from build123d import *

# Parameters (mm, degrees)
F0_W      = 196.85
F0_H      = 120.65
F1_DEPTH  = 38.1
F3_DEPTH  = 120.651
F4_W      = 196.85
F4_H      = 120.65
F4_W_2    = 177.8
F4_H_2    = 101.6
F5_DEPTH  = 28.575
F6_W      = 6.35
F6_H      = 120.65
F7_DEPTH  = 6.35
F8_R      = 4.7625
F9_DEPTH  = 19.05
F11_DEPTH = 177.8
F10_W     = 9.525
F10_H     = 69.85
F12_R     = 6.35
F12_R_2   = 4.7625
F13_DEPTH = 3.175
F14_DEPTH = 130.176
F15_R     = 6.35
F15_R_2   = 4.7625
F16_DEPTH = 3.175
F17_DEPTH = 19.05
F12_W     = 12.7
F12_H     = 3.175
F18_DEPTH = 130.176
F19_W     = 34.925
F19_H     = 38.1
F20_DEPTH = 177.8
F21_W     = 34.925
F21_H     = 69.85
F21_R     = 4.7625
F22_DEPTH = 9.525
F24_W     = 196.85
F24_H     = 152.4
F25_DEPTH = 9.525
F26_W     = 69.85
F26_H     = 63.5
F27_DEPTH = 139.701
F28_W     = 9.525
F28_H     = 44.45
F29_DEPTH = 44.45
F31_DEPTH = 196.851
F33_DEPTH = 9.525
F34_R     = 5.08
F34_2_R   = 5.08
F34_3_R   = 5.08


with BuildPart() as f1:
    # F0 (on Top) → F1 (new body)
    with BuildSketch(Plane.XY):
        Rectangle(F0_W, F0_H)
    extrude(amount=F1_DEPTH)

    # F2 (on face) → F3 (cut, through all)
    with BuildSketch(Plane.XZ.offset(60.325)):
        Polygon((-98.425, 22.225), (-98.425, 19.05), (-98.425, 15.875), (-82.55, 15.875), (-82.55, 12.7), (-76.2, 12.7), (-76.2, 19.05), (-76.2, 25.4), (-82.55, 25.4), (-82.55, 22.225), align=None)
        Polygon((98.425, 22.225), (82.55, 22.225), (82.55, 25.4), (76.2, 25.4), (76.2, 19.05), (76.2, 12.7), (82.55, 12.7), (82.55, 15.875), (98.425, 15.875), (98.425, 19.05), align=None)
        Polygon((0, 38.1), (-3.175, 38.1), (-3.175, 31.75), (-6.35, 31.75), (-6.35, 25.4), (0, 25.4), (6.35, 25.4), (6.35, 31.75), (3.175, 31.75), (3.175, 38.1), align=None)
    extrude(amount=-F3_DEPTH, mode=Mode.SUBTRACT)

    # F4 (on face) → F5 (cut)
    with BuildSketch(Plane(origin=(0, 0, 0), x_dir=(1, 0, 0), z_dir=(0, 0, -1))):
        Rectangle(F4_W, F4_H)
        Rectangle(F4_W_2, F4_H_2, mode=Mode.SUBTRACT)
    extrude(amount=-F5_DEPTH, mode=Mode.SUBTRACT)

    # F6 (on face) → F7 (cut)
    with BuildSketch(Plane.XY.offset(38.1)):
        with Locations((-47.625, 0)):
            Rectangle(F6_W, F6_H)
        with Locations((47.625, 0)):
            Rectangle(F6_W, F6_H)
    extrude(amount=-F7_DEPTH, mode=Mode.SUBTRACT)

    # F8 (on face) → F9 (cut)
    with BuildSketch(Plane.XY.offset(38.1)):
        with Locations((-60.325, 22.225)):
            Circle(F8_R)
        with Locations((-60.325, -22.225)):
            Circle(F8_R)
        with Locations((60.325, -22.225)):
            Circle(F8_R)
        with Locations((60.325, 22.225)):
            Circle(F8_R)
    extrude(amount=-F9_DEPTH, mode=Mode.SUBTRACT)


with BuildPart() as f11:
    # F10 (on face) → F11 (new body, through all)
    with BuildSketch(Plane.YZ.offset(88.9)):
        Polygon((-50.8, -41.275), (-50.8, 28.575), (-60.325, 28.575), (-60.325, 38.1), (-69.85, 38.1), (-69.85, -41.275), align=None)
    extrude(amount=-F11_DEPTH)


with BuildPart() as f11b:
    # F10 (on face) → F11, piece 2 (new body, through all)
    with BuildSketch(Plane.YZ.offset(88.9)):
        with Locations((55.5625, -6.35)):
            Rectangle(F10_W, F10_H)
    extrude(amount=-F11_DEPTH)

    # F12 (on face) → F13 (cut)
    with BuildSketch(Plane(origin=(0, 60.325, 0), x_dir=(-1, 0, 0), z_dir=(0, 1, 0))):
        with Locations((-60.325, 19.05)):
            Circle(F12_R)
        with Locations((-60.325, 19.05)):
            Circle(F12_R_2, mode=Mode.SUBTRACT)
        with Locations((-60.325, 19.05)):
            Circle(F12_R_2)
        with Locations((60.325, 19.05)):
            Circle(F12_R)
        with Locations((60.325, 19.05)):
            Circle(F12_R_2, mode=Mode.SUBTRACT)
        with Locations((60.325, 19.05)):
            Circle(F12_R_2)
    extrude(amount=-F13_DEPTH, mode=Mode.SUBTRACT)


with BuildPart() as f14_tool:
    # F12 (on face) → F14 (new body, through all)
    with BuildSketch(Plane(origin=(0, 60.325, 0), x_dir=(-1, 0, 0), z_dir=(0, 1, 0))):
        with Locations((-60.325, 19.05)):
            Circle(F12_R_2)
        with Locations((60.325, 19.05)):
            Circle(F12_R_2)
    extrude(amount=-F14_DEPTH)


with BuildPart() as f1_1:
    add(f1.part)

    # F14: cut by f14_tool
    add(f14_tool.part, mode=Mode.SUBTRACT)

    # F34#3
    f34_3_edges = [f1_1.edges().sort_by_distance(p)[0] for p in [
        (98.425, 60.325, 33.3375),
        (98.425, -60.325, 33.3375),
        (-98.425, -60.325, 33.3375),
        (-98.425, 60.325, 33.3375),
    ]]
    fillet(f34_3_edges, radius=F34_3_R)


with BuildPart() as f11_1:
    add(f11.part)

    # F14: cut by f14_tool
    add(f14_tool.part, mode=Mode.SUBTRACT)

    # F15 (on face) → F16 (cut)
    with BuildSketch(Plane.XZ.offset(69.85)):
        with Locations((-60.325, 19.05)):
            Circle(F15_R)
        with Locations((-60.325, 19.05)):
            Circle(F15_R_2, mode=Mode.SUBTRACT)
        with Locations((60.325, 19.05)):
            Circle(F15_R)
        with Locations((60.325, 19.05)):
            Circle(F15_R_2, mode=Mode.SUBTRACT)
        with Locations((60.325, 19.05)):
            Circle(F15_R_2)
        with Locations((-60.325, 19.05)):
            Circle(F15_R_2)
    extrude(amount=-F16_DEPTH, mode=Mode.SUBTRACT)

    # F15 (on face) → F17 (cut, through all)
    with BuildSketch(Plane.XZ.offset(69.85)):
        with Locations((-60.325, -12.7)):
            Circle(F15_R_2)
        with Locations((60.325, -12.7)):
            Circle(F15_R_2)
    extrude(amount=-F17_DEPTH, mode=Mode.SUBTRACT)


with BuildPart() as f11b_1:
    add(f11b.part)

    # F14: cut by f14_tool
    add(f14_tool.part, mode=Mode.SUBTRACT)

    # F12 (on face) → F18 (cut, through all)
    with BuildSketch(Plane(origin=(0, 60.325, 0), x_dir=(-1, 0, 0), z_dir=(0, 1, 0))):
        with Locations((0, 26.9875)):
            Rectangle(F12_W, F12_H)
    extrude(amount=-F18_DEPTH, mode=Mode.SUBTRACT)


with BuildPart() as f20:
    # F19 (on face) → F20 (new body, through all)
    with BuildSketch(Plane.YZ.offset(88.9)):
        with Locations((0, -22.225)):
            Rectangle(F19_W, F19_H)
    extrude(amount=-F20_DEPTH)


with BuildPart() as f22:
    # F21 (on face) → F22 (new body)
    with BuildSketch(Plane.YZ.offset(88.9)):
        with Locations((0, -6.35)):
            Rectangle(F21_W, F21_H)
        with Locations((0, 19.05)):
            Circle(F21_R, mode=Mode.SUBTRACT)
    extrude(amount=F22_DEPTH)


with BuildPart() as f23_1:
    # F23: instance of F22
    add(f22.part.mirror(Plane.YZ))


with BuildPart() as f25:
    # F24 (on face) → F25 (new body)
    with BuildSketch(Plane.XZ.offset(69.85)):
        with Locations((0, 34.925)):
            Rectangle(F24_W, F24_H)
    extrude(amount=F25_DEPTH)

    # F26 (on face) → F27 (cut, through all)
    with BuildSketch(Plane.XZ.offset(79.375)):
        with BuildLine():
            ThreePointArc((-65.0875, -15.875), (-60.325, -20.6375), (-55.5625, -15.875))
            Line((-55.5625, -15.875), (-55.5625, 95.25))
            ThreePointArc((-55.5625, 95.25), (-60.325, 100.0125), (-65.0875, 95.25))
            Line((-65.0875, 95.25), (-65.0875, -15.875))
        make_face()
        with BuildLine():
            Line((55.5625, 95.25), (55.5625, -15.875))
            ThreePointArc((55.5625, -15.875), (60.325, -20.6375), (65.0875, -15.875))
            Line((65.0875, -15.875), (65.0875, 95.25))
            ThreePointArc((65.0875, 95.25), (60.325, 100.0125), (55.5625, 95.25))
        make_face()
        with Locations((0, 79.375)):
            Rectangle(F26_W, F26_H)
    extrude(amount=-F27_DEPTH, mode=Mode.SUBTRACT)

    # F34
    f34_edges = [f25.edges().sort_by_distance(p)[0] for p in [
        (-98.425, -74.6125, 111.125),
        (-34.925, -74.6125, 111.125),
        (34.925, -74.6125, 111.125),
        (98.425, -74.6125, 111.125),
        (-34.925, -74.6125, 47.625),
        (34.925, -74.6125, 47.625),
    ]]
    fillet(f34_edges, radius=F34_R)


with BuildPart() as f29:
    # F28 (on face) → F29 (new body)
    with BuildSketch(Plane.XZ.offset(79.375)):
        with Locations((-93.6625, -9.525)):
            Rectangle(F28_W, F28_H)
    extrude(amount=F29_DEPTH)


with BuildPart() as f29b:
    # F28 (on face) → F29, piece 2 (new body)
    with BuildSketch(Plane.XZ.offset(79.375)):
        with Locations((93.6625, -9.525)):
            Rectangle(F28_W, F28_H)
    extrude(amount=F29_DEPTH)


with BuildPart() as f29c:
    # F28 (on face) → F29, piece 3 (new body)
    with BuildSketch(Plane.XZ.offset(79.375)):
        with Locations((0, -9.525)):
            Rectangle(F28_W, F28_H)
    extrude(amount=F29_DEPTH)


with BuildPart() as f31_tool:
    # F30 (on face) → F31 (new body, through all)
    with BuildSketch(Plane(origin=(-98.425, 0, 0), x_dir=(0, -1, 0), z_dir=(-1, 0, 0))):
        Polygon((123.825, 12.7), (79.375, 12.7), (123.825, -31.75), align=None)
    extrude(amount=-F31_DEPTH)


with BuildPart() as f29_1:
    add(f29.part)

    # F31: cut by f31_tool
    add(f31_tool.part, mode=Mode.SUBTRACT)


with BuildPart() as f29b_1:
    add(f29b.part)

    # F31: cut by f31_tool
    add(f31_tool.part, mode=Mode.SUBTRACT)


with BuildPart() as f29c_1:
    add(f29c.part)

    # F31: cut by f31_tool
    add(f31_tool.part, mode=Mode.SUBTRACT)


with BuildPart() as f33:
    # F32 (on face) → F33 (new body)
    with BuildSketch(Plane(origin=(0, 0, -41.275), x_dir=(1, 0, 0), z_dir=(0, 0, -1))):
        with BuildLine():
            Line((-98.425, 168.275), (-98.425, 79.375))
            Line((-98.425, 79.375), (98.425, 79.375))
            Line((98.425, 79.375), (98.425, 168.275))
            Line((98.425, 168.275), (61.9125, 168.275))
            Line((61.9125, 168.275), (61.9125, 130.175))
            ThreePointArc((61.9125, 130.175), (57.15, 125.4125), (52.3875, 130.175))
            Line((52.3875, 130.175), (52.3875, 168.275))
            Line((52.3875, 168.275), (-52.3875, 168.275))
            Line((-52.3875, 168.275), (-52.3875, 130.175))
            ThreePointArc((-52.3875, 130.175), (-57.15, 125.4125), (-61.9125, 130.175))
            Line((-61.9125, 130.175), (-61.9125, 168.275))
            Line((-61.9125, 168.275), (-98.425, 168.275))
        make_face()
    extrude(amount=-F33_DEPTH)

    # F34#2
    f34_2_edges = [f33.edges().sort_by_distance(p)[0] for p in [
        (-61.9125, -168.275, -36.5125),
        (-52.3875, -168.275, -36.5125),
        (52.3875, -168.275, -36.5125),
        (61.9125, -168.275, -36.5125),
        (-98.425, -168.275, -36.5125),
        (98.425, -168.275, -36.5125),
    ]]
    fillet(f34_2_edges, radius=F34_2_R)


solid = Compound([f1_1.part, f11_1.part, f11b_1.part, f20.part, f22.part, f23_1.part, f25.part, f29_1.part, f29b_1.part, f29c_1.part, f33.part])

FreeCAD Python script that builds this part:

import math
import FreeCAD as App
import Part
import Sketcher
Q = App.Units.Quantity


def edges_at(feature, points):
    """Names of the edges that pass closest to the given points."""
    edges = feature.Shape.Edges
    near = lambda p: min(range(len(edges)), key=lambda i: edges[i].distToShape(Part.Vertex(*p))[0])
    return sorted({f"Edge{near(p) + 1}" for p in points})


def add_polygon(sketch, points):
    """Adds a closed chain of lines whose ends are joined by coincident constraints."""
    first, n = sketch.GeometryCount, len(points)
    for a, b in zip(points, points[1:] + points[:1]):
        sketch.addGeometry(Part.LineSegment(App.Vector(*a, 0), App.Vector(*b, 0)), False)
    for i in range(n):
        sketch.addConstraint(Sketcher.Constraint("Coincident", first + i, 2, first + (i + 1) % n, 1))

doc = App.newDocument("Part")
body = doc.addObject("PartDesign::Body", "Body")

# Sketch on XY plane
sketch1 = doc.addObject("Sketcher::SketchObject", "Sketch")
body.addObject(sketch1)
sketch1.AttachmentSupport = (doc.XY_Plane, [""])
sketch1.MapMode = "FlatFace"
add_polygon(sketch1, [(-98.425, 60.325), (-98.425, -60.325), (98.425, -60.325), (98.425, 60.325)])  # lines 0-3
sketch1.addConstraint(Sketcher.Constraint("Vertical", 0))
sketch1.addConstraint(Sketcher.Constraint("Horizontal", 1))
sketch1.addConstraint(Sketcher.Constraint("Vertical", 2))
sketch1.addConstraint(Sketcher.Constraint("Horizontal", 3))
sketch1.addConstraint(Sketcher.Constraint("Symmetric", 0, 2, 2, 2, -1, 1))
sketch1.addConstraint(Sketcher.Constraint("DistanceX", 1, 1, 1, 2, Q("7.75 in")))
sketch1.addConstraint(Sketcher.Constraint("DistanceY", 0, 2, 0, 1, Q("4.75 in")))
pad1 = doc.addObject("PartDesign::Pad", "Pad")
body.addObject(pad1)
pad1.Profile = sketch1
pad1.Length = Q("1.5 in")

# Sketch on XZ plane
sketch2 = doc.addObject("Sketcher::SketchObject", "Sketch001")
body.addObject(sketch2)
sketch2.AttachmentSupport = (doc.XZ_Plane, [""])
sketch2.MapMode = "FlatFace"
sketch2.AttachmentOffset = App.Placement(App.Vector(0, 0, 2.375 * 25.4), App.Rotation())
add_polygon(sketch2, [(-98.425, 22.225), (-98.425, 15.875), (-82.55, 15.875), (-82.55, 12.7), (-76.2, 12.7), (-76.2, 25.4), (-82.55, 25.4), (-82.55, 22.225)])  # lines 0-7
add_polygon(sketch2, [(98.425, 22.225), (82.55, 22.225), (82.55, 25.4), (76.2, 25.4), (76.2, 12.7), (82.55, 12.7), (82.55, 15.875), (98.425, 15.875)])  # lines 8-15
add_polygon(sketch2, [(-3.175, 38.1), (-3.175, 31.75), (-6.35, 31.75), (-6.35, 25.4), (6.35, 25.4), (6.35, 31.75), (3.175, 31.75), (3.175, 38.1)])  # lines 16-23
sketch2.addConstraint(Sketcher.Constraint("Vertical", 0))
sketch2.addConstraint(Sketcher.Constraint("Horizontal", 1))
sketch2.addConstraint(Sketcher.Constraint("Vertical", 2))
sketch2.addConstraint(Sketcher.Constraint("Horizontal", 3))
sketch2.addConstraint(Sketcher.Constraint("Vertical", 4))
sketch2.addConstraint(Sketcher.Constraint("Horizontal", 5))
sketch2.addConstraint(Sketcher.Constraint("Vertical", 6))
sketch2.addConstraint(Sketcher.Constraint("Horizontal", 7))
sketch2.addConstraint(Sketcher.Constraint("Horizontal", 8))
sketch2.addConstraint(Sketcher.Constraint("Vertical", 9))
sketch2.addConstraint(Sketcher.Constraint("Horizontal", 10))
sketch2.addConstraint(Sketcher.Constraint("Vertical", 11))
sketch2.addConstraint(Sketcher.Constraint("Horizontal", 12))
sketch2.addConstraint(Sketcher.Constraint("Vertical", 13))
sketch2.addConstraint(Sketcher.Constraint("Horizontal", 14))
sketch2.addConstraint(Sketcher.Constraint("Vertical", 15))
sketch2.addConstraint(Sketcher.Constraint("Vertical", 16))
sketch2.addConstraint(Sketcher.Constraint("Horizontal", 17))
sketch2.addConstraint(Sketcher.Constraint("Vertical", 18))
sketch2.addConstraint(Sketcher.Constraint("Horizontal", 19))
sketch2.addConstraint(Sketcher.Constraint("Vertical", 20))
sketch2.addConstraint(Sketcher.Constraint("Horizontal", 21))
sketch2.addConstraint(Sketcher.Constraint("Vertical", 22))
sketch2.addConstraint(Sketcher.Constraint("Horizontal", 23))
sketch2.addConstraint(Sketcher.Constraint("Symmetric", 6, 2, 8, 2, -2))
sketch2.addConstraint(Sketcher.Constraint("Symmetric", 4, 2, 10, 2, -2))
sketch2.addConstraint(Sketcher.Constraint("Symmetric", 2, 2, 12, 2, -2))
sketch2.addConstraint(Sketcher.Constraint("Symmetric", 0, 2, 14, 2, -2))
sketch2.addConstraint(Sketcher.Constraint("Symmetric", 17, 2, 20, 2, -2))
sketch2.addConstraint(Sketcher.Constraint("Horizontal", 10, 2, 18, 2))
sketch2.addConstraint(Sketcher.Constraint("Vertical", 2, 2, 5, 2))
sketch2.addConstraint(Sketcher.Constraint("Equal", 17, 21))
sketch2.addConstraint(Sketcher.Constraint("Equal", 12, 23))
sketch2.addConstraint(Sketcher.Constraint("Equal", 23, 0))
sketch2.addConstraint(Sketcher.Constraint("Equal", 21, 2))
sketch2.addConstraint(Sketcher.Constraint("Equal", 19, 4))
sketch2.addConstraint(Sketcher.Constraint("Equal", 15, 16))
sketch2.addConstraint(Sketcher.Constraint("Equal", 16, 18))
sketch2.addConstraint(Sketcher.Constraint("DistanceX", 19, 1, 19, 2, Q("0.5 in")))
sketch2.addConstraint(Sketcher.Constraint("DistanceX", 3, 2, -1, 1, Q("3 in")))
sketch2.addConstraint(Sketcher.Constraint("DistanceY", -1, 1, 4, 2, Q("1 in")))
sketch2.addConstraint(Sketcher.Constraint("DistanceX", 5, 2, 17, 2, Q("3 in")))
sketch2.addConstraint(Sketcher.Constraint("DistanceX", 1, 1, 1, 2, Q("0.625 in")))
pocket1 = doc.addObject("PartDesign::Pocket", "Pocket")
body.addObject(pocket1)
pocket1.Profile = sketch2
pocket1.Type = "ThroughAll"

# Sketch on XY plane
sketch3 = doc.addObject("Sketcher::SketchObject", "Sketch002")
body.addObject(sketch3)
sketch3.AttachmentSupport = (doc.XY_Plane, [""])
sketch3.MapMode = "FlatFace"
add_polygon(sketch3, [(-98.425, -60.325), (-98.425, 60.325), (98.425, 60.325), (98.425, -60.325)])  # lines 0-3
add_polygon(sketch3, [(88.9, 50.8), (-88.9, 50.8), (-88.9, -50.8), (88.9, -50.8)])  # lines 4-7
sketch3.addConstraint(Sketcher.Constraint("Vertical", 0))
sketch3.addConstraint(Sketcher.Constraint("Horizontal", 1))
sketch3.addConstraint(Sketcher.Constraint("Vertical", 2))
sketch3.addConstraint(Sketcher.Constraint("Horizontal", 3))
sketch3.addConstraint(Sketcher.Constraint("Horizontal", 4))
sketch3.addConstraint(Sketcher.Constraint("Vertical", 5))
sketch3.addConstraint(Sketcher.Constraint("Horizontal", 6))
sketch3.addConstraint(Sketcher.Constraint("Vertical", 7))
sketch3.addConstraint(Sketcher.Constraint("Symmetric", 0, 2, 2, 2, -1, 1))
sketch3.addConstraint(Sketcher.Constraint("Symmetric", 4, 2, 6, 2, -1, 1))
sketch3.addConstraint(Sketcher.Constraint("DistanceX", 4, 2, 4, 1, Q("7 in")))
sketch3.addConstraint(Sketcher.Constraint("DistanceY", 5, 2, 5, 1, Q("4 in")))
sketch3.addConstraint(Sketcher.Constraint("DistanceX", 1, 1, 1, 2, Q("7.75 in")))
sketch3.addConstraint(Sketcher.Constraint("DistanceY", 0, 1, 0, 2, Q("4.75 in")))
pocket2 = doc.addObject("PartDesign::Pocket", "Pocket001")
body.addObject(pocket2)
pocket2.Profile = sketch3
pocket2.Length = Q("1.125 in")
pocket2.Reversed = True

# Sketch on XY plane
sketch4 = doc.addObject("Sketcher::SketchObject", "Sketch003")
body.addObject(sketch4)
sketch4.AttachmentSupport = (doc.XY_Plane, [""])
sketch4.MapMode = "FlatFace"
sketch4.AttachmentOffset = App.Placement(App.Vector(0, 0, 1.5 * 25.4), App.Rotation())
add_polygon(sketch4, [(-50.8, 60.325), (-50.8, -60.325), (-44.45, -60.325), (-44.45, 60.325)])  # lines 0-3
add_polygon(sketch4, [(44.45, 60.325), (44.45, -60.325), (50.8, -60.325), (50.8, 60.325)])  # lines 4-7
sketch4.addConstraint(Sketcher.Constraint("Vertical", 0))
sketch4.addConstraint(Sketcher.Constraint("Horizontal", 1))
sketch4.addConstraint(Sketcher.Constraint("Vertical", 2))
sketch4.addConstraint(Sketcher.Constraint("Horizontal", 3))
sketch4.addConstraint(Sketcher.Constraint("Vertical", 4))
sketch4.addConstraint(Sketcher.Constraint("Horizontal", 5))
sketch4.addConstraint(Sketcher.Constraint("Vertical", 6))
sketch4.addConstraint(Sketcher.Constraint("Horizontal", 7))
sketch4.addConstraint(Sketcher.Constraint("Symmetric", 2, 2, 4, 2, -1, 1))
sketch4.addConstraint(Sketcher.Constraint("Symmetric", 0, 2, 6, 2, -1, 1))
sketch4.addConstraint(Sketcher.Constraint("Horizontal", 1, 2, 4, 2))
sketch4.addConstraint(Sketcher.Constraint("DistanceX", 0, 2, -1, 1, Q("2 in")))
sketch4.addConstraint(Sketcher.Constraint("DistanceX", 1, 1, 1, 2, Q("0.25 in")))
sketch4.addConstraint(Sketcher.Constraint("DistanceY", 0, 2, 0, 1, Q("4.75 in")))
pocket3 = doc.addObject("PartDesign::Pocket", "Pocket002")
body.addObject(pocket3)
pocket3.Profile = sketch4
pocket3.Length = Q("0.25 in")

# Sketch on XY plane
sketch5 = doc.addObject("Sketcher::SketchObject", "Sketch004")
body.addObject(sketch5)
sketch5.AttachmentSupport = (doc.XY_Plane, [""])
sketch5.MapMode = "FlatFace"
sketch5.AttachmentOffset = App.Placement(App.Vector(0, 0, 1.5 * 25.4), App.Rotation())
sketch5.addGeometry(Part.Circle(App.Vector(-60.325, 22.225, 0), App.Vector(0, 0, 1), 4.7625), False)
sketch5.addGeometry(Part.Circle(App.Vector(-60.325, -22.225, 0), App.Vector(0, 0, 1), 4.7625), False)
sketch5.addGeometry(Part.Circle(App.Vector(60.325, -22.225, 0), App.Vector(0, 0, 1), 4.7625), False)
sketch5.addGeometry(Part.Circle(App.Vector(60.325, 22.225, 0), App.Vector(0, 0, 1), 4.7625), False)
sketch5.addConstraint(Sketcher.Constraint("Equal", 0, 1))
sketch5.addConstraint(Sketcher.Constraint("Equal", 1, 2))
sketch5.addConstraint(Sketcher.Constraint("Equal", 2, 3))
sketch5.addConstraint(Sketcher.Constraint("Symmetric", 0, 3, 2, 3, -1, 1))
sketch5.addConstraint(Sketcher.Constraint("Symmetric", 1, 3, 3, 3, -1, 1))
sketch5.addConstraint(Sketcher.Constraint("Symmetric", 1, 3, 2, 3, -2))
sketch5.addConstraint(Sketcher.Constraint("Diameter", 0, Q("0.375 in")))
sketch5.addConstraint(Sketcher.Constraint("DistanceY", 1, 3, 0, 3, Q("1.75 in")))
sketch5.addConstraint(Sketcher.Constraint("DistanceX", 1, 3, 2, 3, Q("4.75 in")))
pocket4 = doc.addObject("PartDesign::Pocket", "Pocket003")
body.addObject(pocket4)
pocket4.Profile = sketch5
pocket4.Length = Q("0.75 in")
body2 = doc.addObject("PartDesign::Body", "Body001")

# Sketch on YZ plane
sketch6 = doc.addObject("Sketcher::SketchObject", "Sketch005")
body2.addObject(sketch6)
sketch6.AttachmentSupport = (doc.getObject("YZ_Plane001"), [""])
sketch6.MapMode = "FlatFace"
sketch6.AttachmentOffset = App.Placement(App.Vector(0, 0, 3.5 * 25.4), App.Rotation())
add_polygon(sketch6, [(-50.8, -41.275), (-50.8, 28.575), (-60.325, 28.575), (-60.325, 38.1), (-69.85, 38.1), (-69.85, -41.275)])  # lines 0-5
sketch6.addConstraint(Sketcher.Constraint("Vertical", 0))
sketch6.addConstraint(Sketcher.Constraint("Horizontal", 1))
sketch6.addConstraint(Sketcher.Constraint("Vertical", 2))
sketch6.addConstraint(Sketcher.Constraint("Horizontal", 3))
sketch6.addConstraint(Sketcher.Constraint("Vertical", 4))
sketch6.addConstraint(Sketcher.Constraint("Horizontal", 5))
sketch6.addConstraint(Sketcher.Constraint("Equal", 1, 3))
sketch6.addConstraint(Sketcher.Constraint("Equal", 3, 2))
sketch6.addConstraint(Sketcher.Constraint("DistanceX", 0, 2, -1, 1, Q("2 in")))
sketch6.addConstraint(Sketcher.Constraint("DistanceX", 5, 1, 5, 2, Q("0.75 in")))
sketch6.addConstraint(Sketcher.Constraint("DistanceY", 0, 1, 0, 2, Q("2.75 in")))
sketch6.addConstraint(Sketcher.Constraint("DistanceY", -1, 1, 2, 2, Q("1.5 in")))
pad2 = doc.addObject("PartDesign::Pad", "Pad001")
body2.addObject(pad2)
pad2.Profile = sketch6
pad2.Length = Q("7 in")
pad2.Reversed = True
body3 = doc.addObject("PartDesign::Body", "Body002")

# Sketch on YZ plane
sketch7 = doc.addObject("Sketcher::SketchObject", "Sketch006")
body3.addObject(sketch7)
sketch7.AttachmentSupport = (doc.getObject("YZ_Plane002"), [""])
sketch7.MapMode = "FlatFace"
sketch7.AttachmentOffset = App.Placement(App.Vector(0, 0, 3.5 * 25.4), App.Rotation())
add_polygon(sketch7, [(50.8, 28.575), (50.8, -41.275), (60.325, -41.275), (60.325, 28.575)])  # lines 0-3
sketch7.addConstraint(Sketcher.Constraint("Vertical", 0))
sketch7.addConstraint(Sketcher.Constraint("Horizontal", 1))
sketch7.addConstraint(Sketcher.Constraint("Vertical", 2))
sketch7.addConstraint(Sketcher.Constraint("Horizontal", 3))
sketch7.addConstraint(Sketcher.Constraint("DistanceX", -1, 1, 0, 2, Q("2 in")))
sketch7.addConstraint(Sketcher.Constraint("DistanceY", 0, 2, 0, 1, Q("2.75 in")))
sketch7.addConstraint(Sketcher.Constraint("DistanceX", 1, 1, 1, 2, Q("0.375 in")))
sketch7.addConstraint(Sketcher.Constraint("DistanceY", 0, 2, -1, 1, Q("1.625 in")))
pad3 = doc.addObject("PartDesign::Pad", "Pad002")
body3.addObject(pad3)
pad3.Profile = sketch7
pad3.Length = Q("7 in")
pad3.Reversed = True

# Sketch on XZ plane
sketch8 = doc.addObject("Sketcher::SketchObject", "Sketch007")
body3.addObject(sketch8)
sketch8.AttachmentSupport = (doc.getObject("XZ_Plane002"), [""])
sketch8.MapMode = "FlatFace"
sketch8.AttachmentOffset = App.Placement(App.Vector(0, 0, -2.375 * 25.4), App.Rotation())
sketch8.addGeometry(Part.Circle(App.Vector(60.325, 19.05, 0), App.Vector(0, 0, 1), 6.35), False)
sketch8.addGeometry(Part.Circle(App.Vector(-60.325, 19.05, 0), App.Vector(0, 0, 1), 6.35), False)
sketch8.addConstraint(Sketcher.Constraint("Equal", 0, 1))
sketch8.addConstraint(Sketcher.Constraint("Symmetric", 0, 3, 1, 3, -2))
sketch8.addConstraint(Sketcher.Constraint("Diameter", 0, Q("0.5 in")))
sketch8.addConstraint(Sketcher.Constraint("DistanceY", -1, 1, 0, 3, Q("0.75 in")))
sketch8.addConstraint(Sketcher.Constraint("DistanceX", 1, 3, 0, 3, Q("4.75 in")))
pocket5 = doc.addObject("PartDesign::Pocket", "Pocket004")
body3.addObject(pocket5)
pocket5.Profile = sketch8
pocket5.Length = Q("0.125 in")
pocket5.Reversed = True
body4 = doc.addObject("PartDesign::Body", "Body003")
body4.AllowCompound = True

# Sketch on XZ plane
sketch9 = doc.addObject("Sketcher::SketchObject", "Sketch008")
body4.addObject(sketch9)
sketch9.AttachmentSupport = (doc.getObject("XZ_Plane003"), [""])
sketch9.MapMode = "FlatFace"
sketch9.AttachmentOffset = App.Placement(App.Vector(0, 0, -2.375 * 25.4), App.Rotation())
sketch9.addGeometry(Part.Circle(App.Vector(60.325, 19.05, 0), App.Vector(0, 0, 1), 4.7625), False)
sketch9.addGeometry(Part.Circle(App.Vector(-60.325, 19.05, 0), App.Vector(0, 0, 1), 4.7625), False)
sketch9.addConstraint(Sketcher.Constraint("Equal", 0, 1))
sketch9.addConstraint(Sketcher.Constraint("Symmetric", 0, 3, 1, 3, -2))
sketch9.addConstraint(Sketcher.Constraint("Diameter", 0, Q("0.375 in")))
sketch9.addConstraint(Sketcher.Constraint("DistanceY", -1, 1, 0, 3, Q("0.75 in")))
sketch9.addConstraint(Sketcher.Constraint("DistanceX", 1, 3, 0, 3, Q("4.75 in")))
pad4 = doc.addObject("PartDesign::Pad", "Pad003")
body4.addObject(pad4)
pad4.Profile = sketch9
pad4.Length = 130.176
doc.recompute()

body5 = doc.addObject("PartDesign::Body", "Body004")
body5.BaseFeature = body4
boolean = doc.addObject("PartDesign::Boolean", "Boolean")
body.addObject(boolean)
boolean.Type = "Cut"
boolean.addObjects([body5])
doc.recompute()

fillet = doc.addObject("PartDesign::Fillet", "Fillet")
body.addObject(fillet)
fillet.Base = (boolean, edges_at(boolean, [
    (98.425, 60.325, 33.337),
    (98.425, -60.325, 33.337),
    (-98.425, -60.325, 33.337),
    (-98.425, 60.325, 33.337),
]))
fillet.Radius = Q("0.2 in")
doc.recompute()

body6 = doc.addObject("PartDesign::Body", "Body005")
body6.BaseFeature = body4
boolean2 = doc.addObject("PartDesign::Boolean", "Boolean001")
body2.addObject(boolean2)
boolean2.Type = "Cut"
boolean2.addObjects([body6])
doc.recompute()

# Sketch on XZ plane
sketch10 = doc.addObject("Sketcher::SketchObject", "Sketch009")
body2.addObject(sketch10)
sketch10.AttachmentSupport = (doc.getObject("XZ_Plane001"), [""])
sketch10.MapMode = "FlatFace"
sketch10.AttachmentOffset = App.Placement(App.Vector(0, 0, 2.75 * 25.4), App.Rotation())
sketch10.addGeometry(Part.Circle(App.Vector(-60.325, 19.05, 0), App.Vector(0, 0, 1), 6.35), False)
sketch10.addGeometry(Part.Circle(App.Vector(60.325, 19.05, 0), App.Vector(0, 0, 1), 6.35), False)
sketch10.addConstraint(Sketcher.Constraint("Equal", 0, 1))
sketch10.addConstraint(Sketcher.Constraint("Symmetric", 0, 3, 1, 3, -2))
sketch10.addConstraint(Sketcher.Constraint("Diameter", 0, Q("0.5 in")))
sketch10.addConstraint(Sketcher.Constraint("DistanceY", -1, 1, 0, 3, Q("0.75 in")))
sketch10.addConstraint(Sketcher.Constraint("DistanceX", 0, 3, 1, 3, Q("4.75 in")))
pocket6 = doc.addObject("PartDesign::Pocket", "Pocket005")
body2.addObject(pocket6)
pocket6.Profile = sketch10
pocket6.Length = Q("0.125 in")

# Sketch on XZ plane
sketch11 = doc.addObject("Sketcher::SketchObject", "Sketch010")
body2.addObject(sketch11)
sketch11.AttachmentSupport = (doc.getObject("XZ_Plane001"), [""])
sketch11.MapMode = "FlatFace"
sketch11.AttachmentOffset = App.Placement(App.Vector(0, 0, 2.75 * 25.4), App.Rotation())
sketch11.addGeometry(Part.Circle(App.Vector(-60.325, -12.7, 0), App.Vector(0, 0, 1), 4.7625), False)
sketch11.addGeometry(Part.Circle(App.Vector(60.325, -12.7, 0), App.Vector(0, 0, 1), 4.7625), False)
sketch11.addConstraint(Sketcher.Constraint("Equal", 0, 1))
sketch11.addConstraint(Sketcher.Constraint("Symmetric", 0, 3, 1, 3, -2))
sketch11.addConstraint(Sketcher.Constraint("Diameter", 0, Q("0.375 in")))
sketch11.addConstraint(Sketcher.Constraint("DistanceY", 0, 3, -1, 1, Q("0.5 in")))
sketch11.addConstraint(Sketcher.Constraint("DistanceX", 0, 3, 1, 3, Q("4.75 in")))
pocket7 = doc.addObject("PartDesign::Pocket", "Pocket006")
body2.addObject(pocket7)
pocket7.Profile = sketch11
pocket7.Type = "ThroughAll"
doc.recompute()

boolean3 = doc.addObject("PartDesign::Boolean", "Boolean002")
body3.addObject(boolean3)
boolean3.Type = "Cut"
boolean3.addObjects([body4])

# Sketch on XZ plane
sketch12 = doc.addObject("Sketcher::SketchObject", "Sketch011")
body3.addObject(sketch12)
sketch12.AttachmentSupport = (doc.getObject("XZ_Plane002"), [""])
sketch12.MapMode = "FlatFace"
sketch12.AttachmentOffset = App.Placement(App.Vector(0, 0, -2.375 * 25.4), App.Rotation())
add_polygon(sketch12, [(6.35, 28.575), (6.35, 25.4), (-6.35, 25.4), (-6.35, 28.575)])  # lines 0-3
sketch12.addConstraint(Sketcher.Constraint("Vertical", 0))
sketch12.addConstraint(Sketcher.Constraint("Horizontal", 1))
sketch12.addConstraint(Sketcher.Constraint("Vertical", 2))
sketch12.addConstraint(Sketcher.Constraint("Horizontal", 3))
sketch12.addConstraint(Sketcher.Constraint("DistanceX", 1, 2, 1, 1, Q("0.5 in")))
sketch12.addConstraint(Sketcher.Constraint("DistanceY", -1, 1, 0, 2, Q("1 in")))
sketch12.addConstraint(Sketcher.Constraint("DistanceY", 0, 2, 0, 1, Q("0.125 in")))
sketch12.addConstraint(Sketcher.Constraint("DistanceX", -1, 1, 0, 2, Q("0.25 in")))
pocket8 = doc.addObject("PartDesign::Pocket", "Pocket007")
body3.addObject(pocket8)
pocket8.Profile = sketch12
pocket8.Type = "ThroughAll"
pocket8.Reversed = True
body7 = doc.addObject("PartDesign::Body", "Body006")

# Sketch on YZ plane
sketch13 = doc.addObject("Sketcher::SketchObject", "Sketch012")
body7.addObject(sketch13)
sketch13.AttachmentSupport = (doc.getObject("YZ_Plane006"), [""])
sketch13.MapMode = "FlatFace"
sketch13.AttachmentOffset = App.Placement(App.Vector(0, 0, 3.5 * 25.4), App.Rotation())
add_polygon(sketch13, [(-17.4625, -3.175), (-17.4625, -41.275), (17.4625, -41.275), (17.4625, -3.175)])  # lines 0-3
sketch13.addConstraint(Sketcher.Constraint("Vertical", 0))
sketch13.addConstraint(Sketcher.Constraint("Horizontal", 1))
sketch13.addConstraint(Sketcher.Constraint("Vertical", 2))
sketch13.addConstraint(Sketcher.Constraint("Horizontal", 3))
sketch13.addConstraint(Sketcher.Constraint("DistanceY", 0, 2, 0, 1, Q("1.5 in")))
sketch13.addConstraint(Sketcher.Constraint("DistanceX", 1, 1, 1, 2, Q("1.375 in")))
sketch13.addConstraint(Sketcher.Constraint("DistanceX", 0, 2, -1, 1, Q("0.6875 in")))
sketch13.addConstraint(Sketcher.Constraint("DistanceY", 0, 2, -1, 1, Q("1.625 in")))
pad5 = doc.addObject("PartDesign::Pad", "Pad004")
body7.addObject(pad5)
pad5.Profile = sketch13
pad5.Length = Q("7 in")
pad5.Reversed = True
body8 = doc.addObject("PartDesign::Body", "Body007")

# Sketch on YZ plane
sketch14 = doc.addObject("Sketcher::SketchObject", "Sketch013")
body8.addObject(sketch14)
sketch14.AttachmentSupport = (doc.getObject("YZ_Plane007"), [""])
sketch14.MapMode = "FlatFace"
sketch14.AttachmentOffset = App.Placement(App.Vector(0, 0, 3.5 * 25.4), App.Rotation())
add_polygon(sketch14, [(-17.4625, 28.575), (-17.4625, -41.275), (17.4625, -41.275), (17.4625, 28.575)])  # lines 0-3
sketch14.addGeometry(Part.Circle(App.Vector(0, 19.05, 0), App.Vector(0, 0, 1), 4.7625), False)  # 4
sketch14.addConstraint(Sketcher.Constraint("Vertical", 0))
sketch14.addConstraint(Sketcher.Constraint("Horizontal", 1))
sketch14.addConstraint(Sketcher.Constraint("Vertical", 2))
sketch14.addConstraint(Sketcher.Constraint("Horizontal", 3))
sketch14.addConstraint(Sketcher.Constraint("PointOnObject", 4, 3, -2))
sketch14.addConstraint(Sketcher.Constraint("Diameter", 4, Q("0.375 in")))
sketch14.addConstraint(Sketcher.Constraint("DistanceY", 0, 2, 0, 1, Q("2.75 in")))
sketch14.addConstraint(Sketcher.Constraint("DistanceX", 1, 1, 1, 2, Q("1.375 in")))
sketch14.addConstraint(Sketcher.Constraint("DistanceY", -1, 1, 4, 3, Q("0.75 in")))
sketch14.addConstraint(Sketcher.Constraint("DistanceX", 0, 2, -1, 1, Q("0.6875 in")))
sketch14.addConstraint(Sketcher.Constraint("DistanceY", 0, 2, -1, 1, Q("1.625 in")))
pad6 = doc.addObject("PartDesign::Pad", "Pad005")
body8.addObject(pad6)
pad6.Profile = sketch14
pad6.Length = Q("0.375 in")
body9 = doc.addObject("PartDesign::Body", "Body008")
doc.recompute()

mirroring = doc.addObject("Part::Mirroring", "Mirroring")
mirroring.Source = body8
mirroring.Base = App.Vector(0, 0, 0)
mirroring.Normal = App.Vector(1, 0, 0)
body9.BaseFeature = mirroring
doc.recompute()
body10 = doc.addObject("PartDesign::Body", "Body009")

# Sketch on XZ plane
sketch15 = doc.addObject("Sketcher::SketchObject", "Sketch014")
body10.addObject(sketch15)
sketch15.AttachmentSupport = (doc.getObject("XZ_Plane009"), [""])
sketch15.MapMode = "FlatFace"
sketch15.AttachmentOffset = App.Placement(App.Vector(0, 0, 2.75 * 25.4), App.Rotation())
add_polygon(sketch15, [(-98.425, 111.125), (-98.425, -41.275), (98.425, -41.275), (98.425, 111.125)])  # lines 0-3
sketch15.addConstraint(Sketcher.Constraint("Vertical", 0))
sketch15.addConstraint(Sketcher.Constraint("Horizontal", 1))
sketch15.addConstraint(Sketcher.Constraint("Vertical", 2))
sketch15.addConstraint(Sketcher.Constraint("Horizontal", 3))
sketch15.addConstraint(Sketcher.Constraint("DistanceY", 0, 2, 0, 1, Q("6 in")))
sketch15.addConstraint(Sketcher.Constraint("DistanceX", 1, 1, 1, 2, Q("7.75 in")))
sketch15.addConstraint(Sketcher.Constraint("DistanceX", 0, 2, -1, 1, Q("3.875 in")))
sketch15.addConstraint(Sketcher.Constraint("DistanceY", 0, 2, -1, 1, Q("1.625 in")))
pad7 = doc.addObject("PartDesign::Pad", "Pad006")
body10.addObject(pad7)
pad7.Profile = sketch15
pad7.Length = Q("0.375 in")

# Sketch on XZ plane
sketch16 = doc.addObject("Sketcher::SketchObject", "Sketch015")
body10.addObject(sketch16)
sketch16.AttachmentSupport = (doc.getObject("XZ_Plane009"), [""])
sketch16.MapMode = "FlatFace"
sketch16.AttachmentOffset = App.Placement(App.Vector(0, 0, 3.125 * 25.4), App.Rotation())
sketch16.addGeometry(Part.ArcOfCircle(Part.Circle(App.Vector(-60.325, -15.875, 0), App.Vector(0, 0, 1), 4.7625), math.radians(180), math.radians(360)), False)  # 0
sketch16.addGeometry(Part.LineSegment(App.Vector(-55.5625, -15.875, 0), App.Vector(-55.5625, 95.25, 0)), False)  # 1
sketch16.addGeometry(Part.ArcOfCircle(Part.Circle(App.Vector(-60.325, 95.25, 0), App.Vector(0, 0, 1), 4.7625), math.radians(0), math.radians(180)), False)  # 2
sketch16.addGeometry(Part.LineSegment(App.Vector(-65.0875, 95.25, 0), App.Vector(-65.0875, -15.875, 0)), False)  # 3
sketch16.addGeometry(Part.LineSegment(App.Vector(55.5625, 95.25, 0), App.Vector(55.5625, -15.875, 0)), False)  # 4
sketch16.addGeometry(Part.ArcOfCircle(Part.Circle(App.Vector(60.325, -15.875, 0), App.Vector(0, 0, 1), 4.7625), math.radians(180), math.radians(360)), False)  # 5
sketch16.addGeometry(Part.LineSegment(App.Vector(65.0875, -15.875, 0), App.Vector(65.0875, 95.25, 0)), False)  # 6
sketch16.addGeometry(Part.ArcOfCircle(Part.Circle(App.Vector(60.325, 95.25, 0), App.Vector(0, 0, 1), 4.7625), math.radians(0), math.radians(180)), False)  # 7
add_polygon(sketch16, [(-34.925, 111.125), (-34.925, 47.625), (34.925, 47.625), (34.925, 111.125)])  # lines 8-11
sketch16.addConstraint(Sketcher.Constraint("Tangent", 0, 2, 1, 1))
sketch16.addConstraint(Sketcher.Constraint("Tangent", 1, 2, 2, 1))
sketch16.addConstraint(Sketcher.Constraint("Tangent", 2, 2, 3, 1))
sketch16.addConstraint(Sketcher.Constraint("Tangent", 3, 2, 0, 1))
sketch16.addConstraint(Sketcher.Constraint("Tangent", 4, 2, 5, 1))
sketch16.addConstraint(Sketcher.Constraint("Tangent", 5, 2, 6, 1))
sketch16.addConstraint(Sketcher.Constraint("Tangent", 6, 2, 7, 1))
sketch16.addConstraint(Sketcher.Constraint("Tangent", 7, 2, 4, 1))
sketch16.addConstraint(Sketcher.Constraint("Vertical", 1))
sketch16.addConstraint(Sketcher.Constraint("Vertical", 3))
sketch16.addConstraint(Sketcher.Constraint("Vertical", 4))
sketch16.addConstraint(Sketcher.Constraint("Vertical", 6))
sketch16.addConstraint(Sketcher.Constraint("Vertical", 8))
sketch16.addConstraint(Sketcher.Constraint("Horizontal", 9))
sketch16.addConstraint(Sketcher.Constraint("Vertical", 10))
sketch16.addConstraint(Sketcher.Constraint("Horizontal", 11))
sketch16.addConstraint(Sketcher.Constraint("Equal", 2, 5))
sketch16.addConstraint(Sketcher.Constraint("Symmetric", 0, 3, 5, 3, -2))
sketch16.addConstraint(Sketcher.Constraint("Horizontal", 2, 3, 7, 3))
sketch16.addConstraint(Sketcher.Constraint("DistanceY", 8, 2, 8, 1, Q("2.5 in")))
sketch16.addConstraint(Sketcher.Constraint("Radius", 0, Q("0.1875 in")))
sketch16.addConstraint(Sketcher.Constraint("DistanceX", 2, 3, 8, 2, Q("1 in")))
sketch16.addConstraint(Sketcher.Constraint("DistanceX", 9, 2, 7, 3, Q("1 in")))
sketch16.addConstraint(Sketcher.Constraint("DistanceX", 9, 1, 9, 2, Q("2.75 in")))
sketch16.addConstraint(Sketcher.Constraint("DistanceY", 0, 2, 8, 2, Q("2.5 in")))
sketch16.addConstraint(Sketcher.Constraint("DistanceY", 1, 1, 1, 2, Q("4.375 in")))
sketch16.addConstraint(Sketcher.Constraint("DistanceY", -1, 1, 2, 3, Q("3.75 in")))
pocket9 = doc.addObject("PartDesign::Pocket", "Pocket008")
body10.addObject(pocket9)
pocket9.Profile = sketch16
pocket9.Type = "ThroughAll"
doc.recompute()

fillet2 = doc.addObject("PartDesign::Fillet", "Fillet001")
body10.addObject(fillet2)
fillet2.Base = (pocket9, edges_at(pocket9, [
    (-98.425, -74.612, 111.125),
    (-34.925, -74.612, 111.125),
    (34.925, -74.612, 111.125),
    (98.425, -74.612, 111.125),
    (-34.925, -74.612, 47.625),
    (34.925, -74.612, 47.625),
]))
fillet2.Radius = Q("0.2 in")
body11 = doc.addObject("PartDesign::Body", "Body010")

# Sketch on XZ plane
sketch17 = doc.addObject("Sketcher::SketchObject", "Sketch016")
body11.addObject(sketch17)
sketch17.AttachmentSupport = (doc.getObject("XZ_Plane010"), [""])
sketch17.MapMode = "FlatFace"
sketch17.AttachmentOffset = App.Placement(App.Vector(0, 0, 3.125 * 25.4), App.Rotation())
add_polygon(sketch17, [(-98.425, 12.7), (-98.425, -31.75), (-88.9, -31.75), (-88.9, 12.7)])  # lines 0-3
sketch17.addConstraint(Sketcher.Constraint("Vertical", 0))
sketch17.addConstraint(Sketcher.Constraint("Horizontal", 1))
sketch17.addConstraint(Sketcher.Constraint("Vertical", 2))
sketch17.addConstraint(Sketcher.Constraint("Horizontal", 3))
sketch17.addConstraint(Sketcher.Constraint("DistanceY", 0, 2, 0, 1, Q("1.75 in")))
sketch17.addConstraint(Sketcher.Constraint("DistanceX", 1, 2, -1, 1, Q("3.5 in")))
sketch17.addConstraint(Sketcher.Constraint("DistanceY", -1, 1, 2, 2, Q("0.5 in")))
sketch17.addConstraint(Sketcher.Constraint("DistanceX", 1, 1, 1, 2, Q("0.375 in")))
pad8 = doc.addObject("PartDesign::Pad", "Pad007")
body11.addObject(pad8)
pad8.Profile = sketch17
pad8.Length = Q("1.75 in")
body12 = doc.addObject("PartDesign::Body", "Body011")

# Sketch on XZ plane
sketch18 = doc.addObject("Sketcher::SketchObject", "Sketch017")
body12.addObject(sketch18)
sketch18.AttachmentSupport = (doc.getObject("XZ_Plane011"), [""])
sketch18.MapMode = "FlatFace"
sketch18.AttachmentOffset = App.Placement(App.Vector(0, 0, 3.125 * 25.4), App.Rotation())
add_polygon(sketch18, [(88.9, 12.7), (88.9, -31.75), (98.425, -31.75), (98.425, 12.7)])  # lines 0-3
sketch18.addConstraint(Sketcher.Constraint("Vertical", 0))
sketch18.addConstraint(Sketcher.Constraint("Horizontal", 1))
sketch18.addConstraint(Sketcher.Constraint("Vertical", 2))
sketch18.addConstraint(Sketcher.Constraint("Horizontal", 3))
sketch18.addConstraint(Sketcher.Constraint("DistanceY", 0, 2, 0, 1, Q("1.75 in")))
sketch18.addConstraint(Sketcher.Constraint("DistanceX", -1, 1, 0, 2, Q("3.5 in")))
sketch18.addConstraint(Sketcher.Constraint("DistanceY", -1, 1, 2, 2, Q("0.5 in")))
sketch18.addConstraint(Sketcher.Constraint("DistanceX", 1, 1, 1, 2, Q("0.375 in")))
pad9 = doc.addObject("PartDesign::Pad", "Pad008")
body12.addObject(pad9)
pad9.Profile = sketch18
pad9.Length = Q("1.75 in")
body13 = doc.addObject("PartDesign::Body", "Body012")

# Sketch on XZ plane
sketch19 = doc.addObject("Sketcher::SketchObject", "Sketch018")
body13.addObject(sketch19)
sketch19.AttachmentSupport = (doc.getObject("XZ_Plane012"), [""])
sketch19.MapMode = "FlatFace"
sketch19.AttachmentOffset = App.Placement(App.Vector(0, 0, 3.125 * 25.4), App.Rotation())
add_polygon(sketch19, [(-4.7625, 12.7), (-4.7625, -31.75), (4.7625, -31.75), (4.7625, 12.7)])  # lines 0-3
sketch19.addConstraint(Sketcher.Constraint("Vertical", 0))
sketch19.addConstraint(Sketcher.Constraint("Horizontal", 1))
sketch19.addConstraint(Sketcher.Constraint("Vertical", 2))
sketch19.addConstraint(Sketcher.Constraint("Horizontal", 3))
sketch19.addConstraint(Sketcher.Constraint("DistanceY", 0, 2, 0, 1, Q("1.75 in")))
sketch19.addConstraint(Sketcher.Constraint("DistanceY", -1, 1, 2, 2, Q("0.5 in")))
sketch19.addConstraint(Sketcher.Constraint("DistanceX", 1, 1, 1, 2, Q("0.375 in")))
sketch19.addConstraint(Sketcher.Constraint("DistanceX", 0, 2, -1, 1, Q("0.1875 in")))
pad10 = doc.addObject("PartDesign::Pad", "Pad009")
body13.addObject(pad10)
pad10.Profile = sketch19
pad10.Length = Q("1.75 in")
body14 = doc.addObject("PartDesign::Body", "Body013")

# Sketch on YZ plane
sketch20 = doc.addObject("Sketcher::SketchObject", "Sketch019")
body14.addObject(sketch20)
sketch20.AttachmentSupport = (doc.getObject("YZ_Plane013"), [""])
sketch20.MapMode = "FlatFace"
sketch20.AttachmentOffset = App.Placement(App.Vector(0, 0, -3.875 * 25.4), App.Rotation())
add_polygon(sketch20, [(-123.825, 12.7), (-79.375, 12.7), (-123.825, -31.75)])  # lines 0-2
sketch20.addConstraint(Sketcher.Constraint("Horizontal", 0))
sketch20.addConstraint(Sketcher.Constraint("Vertical", 2))
sketch20.addConstraint(Sketcher.Constraint("Equal", 0, 2))
sketch20.addConstraint(Sketcher.Constraint("DistanceX", 0, 1, 0, 2, Q("1.75 in")))
sketch20.addConstraint(Sketcher.Constraint("DistanceY", -1, 1, 0, 2, Q("0.5 in")))
sketch20.addConstraint(Sketcher.Constraint("DistanceX", 0, 2, -1, 1, Q("3.125 in")))
pad11 = doc.addObject("PartDesign::Pad", "Pad010")
body14.addObject(pad11)
pad11.Profile = sketch20
pad11.Length = 196.851
doc.recompute()

body15 = doc.addObject("PartDesign::Body", "Body014")
body15.BaseFeature = body14
boolean4 = doc.addObject("PartDesign::Boolean", "Boolean003")
body11.addObject(boolean4)
boolean4.Type = "Cut"
boolean4.addObjects([body15])
doc.recompute()

body16 = doc.addObject("PartDesign::Body", "Body015")
body16.BaseFeature = body14
boolean5 = doc.addObject("PartDesign::Boolean", "Boolean004")
body12.addObject(boolean5)
boolean5.Type = "Cut"
boolean5.addObjects([body16])
doc.recompute()

boolean6 = doc.addObject("PartDesign::Boolean", "Boolean005")
body13.addObject(boolean6)
boolean6.Type = "Cut"
boolean6.addObjects([body14])
body17 = doc.addObject("PartDesign::Body", "Body016")

# Sketch on XY plane
sketch21 = doc.addObject("Sketcher::SketchObject", "Sketch020")
body17.addObject(sketch21)
sketch21.AttachmentSupport = (doc.getObject("XY_Plane016"), [""])
sketch21.MapMode = "FlatFace"
sketch21.AttachmentOffset = App.Placement(App.Vector(0, 0, -1.625 * 25.4), App.Rotation())
sketch21.addGeometry(Part.LineSegment(App.Vector(-98.425, -168.275, 0), App.Vector(-98.425, -79.375, 0)), False)
sketch21.addGeometry(Part.LineSegment(App.Vector(-98.425, -79.375, 0), App.Vector(98.425, -79.375, 0)), False)
sketch21.addGeometry(Part.LineSegment(App.Vector(98.425, -79.375, 0), App.Vector(98.425, -168.275, 0)), False)
sketch21.addGeometry(Part.LineSegment(App.Vector(98.425, -168.275, 0), App.Vector(61.9125, -168.275, 0)), False)
sketch21.addGeometry(Part.LineSegment(App.Vector(61.9125, -168.275, 0), App.Vector(61.9125, -130.175, 0)), False)
sketch21.addGeometry(Part.ArcOfCircle(Part.Circle(App.Vector(57.15, -130.175, 0), App.Vector(0, 0, 1), 4.7625), math.radians(0), math.radians(180)), False)
sketch21.addGeometry(Part.LineSegment(App.Vector(52.3875, -130.175, 0), App.Vector(52.3875, -168.275, 0)), False)
sketch21.addGeometry(Part.LineSegment(App.Vector(52.3875, -168.275, 0), App.Vector(-52.3875, -168.275, 0)), False)
sketch21.addGeometry(Part.LineSegment(App.Vector(-52.3875, -168.275, 0), App.Vector(-52.3875, -130.175, 0)), False)
sketch21.addGeometry(Part.ArcOfCircle(Part.Circle(App.Vector(-57.15, -130.175, 0), App.Vector(0, 0, 1), 4.7625), math.radians(0), math.radians(180)), False)
sketch21.addGeometry(Part.LineSegment(App.Vector(-61.9125, -130.175, 0), App.Vector(-61.9125, -168.275, 0)), False)
sketch21.addGeometry(Part.LineSegment(App.Vector(-61.9125, -168.275, 0), App.Vector(-98.425, -168.275, 0)), False)
sketch21.addConstraint(Sketcher.Constraint("Coincident", 0, 2, 1, 1))
sketch21.addConstraint(Sketcher.Constraint("Coincident", 1, 2, 2, 1))
sketch21.addConstraint(Sketcher.Constraint("Coincident", 2, 2, 3, 1))
sketch21.addConstraint(Sketcher.Constraint("Coincident", 3, 2, 4, 1))
sketch21.addConstraint(Sketcher.Constraint("Tangent", 4, 2, 5, 1))
sketch21.addConstraint(Sketcher.Constraint("Tangent", 5, 2, 6, 1))
sketch21.addConstraint(Sketcher.Constraint("Coincident", 6, 2, 7, 1))
sketch21.addConstraint(Sketcher.Constraint("Coincident", 7, 2, 8, 1))
sketch21.addConstraint(Sketcher.Constraint("Tangent", 8, 2, 9, 1))
sketch21.addConstraint(Sketcher.Constraint("Tangent", 9, 2, 10, 1))
sketch21.addConstraint(Sketcher.Constraint("Coincident", 10, 2, 11, 1))
sketch21.addConstraint(Sketcher.Constraint("Coincident", 11, 2, 0, 1))
sketch21.addConstraint(Sketcher.Constraint("Vertical", 0))
sketch21.addConstraint(Sketcher.Constraint("Horizontal", 1))
sketch21.addConstraint(Sketcher.Constraint("Vertical", 2))
sketch21.addConstraint(Sketcher.Constraint("Horizontal", 3))
sketch21.addConstraint(Sketcher.Constraint("Vertical", 4))
sketch21.addConstraint(Sketcher.Constraint("Vertical", 6))
sketch21.addConstraint(Sketcher.Constraint("Horizontal", 7))
sketch21.addConstraint(Sketcher.Constraint("Vertical", 8))
sketch21.addConstraint(Sketcher.Constraint("Vertical", 10))
sketch21.addConstraint(Sketcher.Constraint("Horizontal", 11))
sketch21.addConstraint(Sketcher.Constraint("Equal", 5, 9))
sketch21.addConstraint(Sketcher.Constraint("Symmetric", 5, 3, 9, 3, -2))
sketch21.addConstraint(Sketcher.Constraint("Symmetric", 2, 2, 11, 2, -2))
sketch21.addConstraint(Sketcher.Constraint("Horizontal", 3, 2, 6, 2))
sketch21.addConstraint(Sketcher.Constraint("DistanceY", 0, 1, 0, 2, Q("3.5 in")))
sketch21.addConstraint(Sketcher.Constraint("DistanceY", 4, 1, 4, 2, Q("1.5 in")))
sketch21.addConstraint(Sketcher.Constraint("Radius", 5, Q("0.1875 in")))
sketch21.addConstraint(Sketcher.Constraint("DistanceX", 1, 1, 1, 2, Q("7.75 in")))
sketch21.addConstraint(Sketcher.Constraint("DistanceX", 9, 3, 5, 3, Q("4.5 in")))
sketch21.addConstraint(Sketcher.Constraint("DistanceY", 5, 3, -1, 1, Q("5.125 in")))
pad12 = doc.addObject("PartDesign::Pad", "Pad011")
body17.addObject(pad12)
pad12.Profile = sketch21
pad12.Length = Q("0.375 in")
doc.recompute()

fillet3 = doc.addObject("PartDesign::Fillet", "Fillet002")
body17.addObject(fillet3)
fillet3.Base = (pad12, edges_at(pad12, [
    (-61.913, -168.275, -36.513),
    (-52.388, -168.275, -36.513),
    (52.388, -168.275, -36.513),
    (61.913, -168.275, -36.513),
    (-98.425, -168.275, -36.513),
    (98.425, -168.275, -36.513),
]))
fillet3.Radius = Q("0.2 in")
mirroring.Visibility = False

doc.recompute()
